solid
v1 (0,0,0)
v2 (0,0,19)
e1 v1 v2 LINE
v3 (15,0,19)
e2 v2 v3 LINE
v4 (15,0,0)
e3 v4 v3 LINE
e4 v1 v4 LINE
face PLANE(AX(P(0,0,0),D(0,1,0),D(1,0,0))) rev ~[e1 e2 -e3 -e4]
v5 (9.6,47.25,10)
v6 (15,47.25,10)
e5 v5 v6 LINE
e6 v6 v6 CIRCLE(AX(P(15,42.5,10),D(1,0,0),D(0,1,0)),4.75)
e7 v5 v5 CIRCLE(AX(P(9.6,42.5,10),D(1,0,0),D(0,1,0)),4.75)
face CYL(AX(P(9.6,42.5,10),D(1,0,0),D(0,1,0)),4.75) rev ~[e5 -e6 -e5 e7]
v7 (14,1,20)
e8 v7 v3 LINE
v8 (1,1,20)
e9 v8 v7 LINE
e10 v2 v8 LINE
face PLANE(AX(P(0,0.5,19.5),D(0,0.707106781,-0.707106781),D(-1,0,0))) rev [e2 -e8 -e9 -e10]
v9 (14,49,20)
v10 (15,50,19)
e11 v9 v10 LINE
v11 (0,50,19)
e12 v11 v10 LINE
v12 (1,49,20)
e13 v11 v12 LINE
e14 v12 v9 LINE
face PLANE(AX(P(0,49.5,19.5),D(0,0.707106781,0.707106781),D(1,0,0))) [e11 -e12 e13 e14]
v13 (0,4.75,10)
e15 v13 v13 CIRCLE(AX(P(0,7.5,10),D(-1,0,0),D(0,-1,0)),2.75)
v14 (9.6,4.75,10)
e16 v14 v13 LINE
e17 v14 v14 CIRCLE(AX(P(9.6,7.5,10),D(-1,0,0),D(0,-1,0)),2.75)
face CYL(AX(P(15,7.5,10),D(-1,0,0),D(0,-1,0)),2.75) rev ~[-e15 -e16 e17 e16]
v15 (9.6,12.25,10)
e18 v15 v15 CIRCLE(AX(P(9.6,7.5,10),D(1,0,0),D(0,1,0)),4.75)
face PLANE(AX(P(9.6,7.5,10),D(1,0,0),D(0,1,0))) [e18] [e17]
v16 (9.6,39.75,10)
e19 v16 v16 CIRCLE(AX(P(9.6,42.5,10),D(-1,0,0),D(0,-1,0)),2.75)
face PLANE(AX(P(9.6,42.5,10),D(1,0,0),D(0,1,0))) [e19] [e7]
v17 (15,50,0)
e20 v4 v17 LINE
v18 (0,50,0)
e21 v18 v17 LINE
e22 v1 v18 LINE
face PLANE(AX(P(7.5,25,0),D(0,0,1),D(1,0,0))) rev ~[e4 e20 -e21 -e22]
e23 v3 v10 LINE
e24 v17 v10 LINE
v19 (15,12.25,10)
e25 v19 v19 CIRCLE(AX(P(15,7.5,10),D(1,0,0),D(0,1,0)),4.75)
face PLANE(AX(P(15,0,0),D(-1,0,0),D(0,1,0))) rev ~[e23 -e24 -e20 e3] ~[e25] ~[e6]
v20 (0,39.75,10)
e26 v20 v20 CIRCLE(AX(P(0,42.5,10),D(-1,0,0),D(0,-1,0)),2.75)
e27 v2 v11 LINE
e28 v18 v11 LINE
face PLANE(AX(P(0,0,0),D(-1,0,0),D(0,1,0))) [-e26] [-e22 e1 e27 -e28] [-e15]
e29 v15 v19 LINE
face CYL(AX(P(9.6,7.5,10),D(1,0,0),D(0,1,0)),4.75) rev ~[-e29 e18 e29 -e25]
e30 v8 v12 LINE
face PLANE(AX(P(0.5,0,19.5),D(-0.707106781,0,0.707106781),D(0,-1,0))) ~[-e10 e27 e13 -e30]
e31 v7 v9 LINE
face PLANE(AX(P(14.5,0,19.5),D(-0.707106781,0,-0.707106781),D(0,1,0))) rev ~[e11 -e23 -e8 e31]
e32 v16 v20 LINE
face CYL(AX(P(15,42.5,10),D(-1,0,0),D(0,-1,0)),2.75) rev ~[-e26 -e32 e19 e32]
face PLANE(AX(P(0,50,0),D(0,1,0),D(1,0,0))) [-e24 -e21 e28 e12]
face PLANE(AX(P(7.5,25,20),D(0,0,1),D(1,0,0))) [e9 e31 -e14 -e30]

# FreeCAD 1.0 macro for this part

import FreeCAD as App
import Part
import Sketcher


def edges_at(feature, points):
    """Names of the edges that pass closest to the given points."""
    edges = feature.Shape.Edges
    near = lambda p: min(range(len(edges)), key=lambda i: edges[i].distToShape(Part.Vertex(*p))[0])
    return sorted({f"Edge{near(p) + 1}" for p in points})

doc = App.newDocument("Part")
body = doc.addObject("PartDesign::Body", "Body")

sketch1 = body.newObject("Sketcher::SketchObject", "Sketch")
sketch1.AttachmentSupport = (doc.getObject("XY_Plane"), [""])
sketch1.MapMode = "FlatFace"
sketch1.addGeometry(Part.LineSegment(App.Vector(0, 50, 0), App.Vector(0, 0, 0)), False)
sketch1.addGeometry(Part.LineSegment(App.Vector(0, 0, 0), App.Vector(15, 0, 0)), False)
sketch1.addGeometry(Part.LineSegment(App.Vector(15, 0, 0), App.Vector(15, 50, 0)), False)
sketch1.addGeometry(Part.LineSegment(App.Vector(15, 50, 0), App.Vector(0, 50, 0)), False)
sketch1.addConstraint(Sketcher.Constraint("Coincident", 0, 2, 1, 1))
sketch1.addConstraint(Sketcher.Constraint("Coincident", 1, 2, 2, 1))
sketch1.addConstraint(Sketcher.Constraint("Coincident", 2, 2, 3, 1))
sketch1.addConstraint(Sketcher.Constraint("Coincident", 3, 2, 0, 1))
sketch1.addConstraint(Sketcher.Constraint("Vertical", 0))
sketch1.addConstraint(Sketcher.Constraint("Horizontal", 1))
sketch1.addConstraint(Sketcher.Constraint("Vertical", 2))
sketch1.addConstraint(Sketcher.Constraint("Horizontal", 3))
sketch1.addConstraint(Sketcher.Constraint("Coincident", 0, 2, -1, 1))
sketch1.addConstraint(Sketcher.Constraint("DistanceX", 1, 1, 1, 2, 15.0))
sketch1.addConstraint(Sketcher.Constraint("DistanceY", 0, 2, 0, 1, 50.0))
pad1 = body.newObject("PartDesign::Pad", "Pad")
pad1.Profile = sketch1
pad1.Length = 20

sketch2 = body.newObject("Sketcher::SketchObject", "Sketch001")
sketch2.AttachmentSupport = (doc.getObject("YZ_Plane"), [""])
sketch2.MapMode = "FlatFace"
sketch2.AttachmentOffset = App.Placement(App.Vector(0, 0, 15), App.Rotation())
sketch2.addGeometry(Part.Circle(App.Vector(7.5, 10, 0), App.Vector(0, 0, 1), 2.8), False)
sketch2.addGeometry(Part.Circle(App.Vector(42.5, 10, 0), App.Vector(0, 0, 1), 2.8), False)
sketch2.addConstraint(Sketcher.Constraint("Equal", 0, 1))
sketch2.addConstraint(Sketcher.Constraint("Horizontal", 0, 3, 1, 3))
sketch2.addConstraint(Sketcher.Constraint("Diameter", 0, 5.5))
sketch2.addConstraint(Sketcher.Constraint("DistanceY", -1, 1, 0, 3, 10.0))
sketch2.addConstraint(Sketcher.Constraint("DistanceX", 0, 3, 1, 3, 35.0))
sketch2.addConstraint(Sketcher.Constraint("DistanceX", -1, 1, 0, 3, 7.5))
doc.recompute()
hole = body.newObject("PartDesign::Hole", "Hole")
hole.Profile = sketch2
hole.ThreadType = "None"
hole.Diameter = 5.5
hole.DepthType = "ThroughAll"
hole.HoleCutType = "Counterbore"
hole.HoleCutDiameter = 9.5
hole.HoleCutDepth = 5.4
doc.recompute()

chamfer = body.newObject("PartDesign::Chamfer", "Chamfer")
chamfer.Base = (hole, edges_at(hole, [
    (15, 25, 20),
    (7.5, 0, 20),
    (0, 25, 20),
    (7.5, 50, 20),
]))
chamfer.Size = 1

doc.recompute()
